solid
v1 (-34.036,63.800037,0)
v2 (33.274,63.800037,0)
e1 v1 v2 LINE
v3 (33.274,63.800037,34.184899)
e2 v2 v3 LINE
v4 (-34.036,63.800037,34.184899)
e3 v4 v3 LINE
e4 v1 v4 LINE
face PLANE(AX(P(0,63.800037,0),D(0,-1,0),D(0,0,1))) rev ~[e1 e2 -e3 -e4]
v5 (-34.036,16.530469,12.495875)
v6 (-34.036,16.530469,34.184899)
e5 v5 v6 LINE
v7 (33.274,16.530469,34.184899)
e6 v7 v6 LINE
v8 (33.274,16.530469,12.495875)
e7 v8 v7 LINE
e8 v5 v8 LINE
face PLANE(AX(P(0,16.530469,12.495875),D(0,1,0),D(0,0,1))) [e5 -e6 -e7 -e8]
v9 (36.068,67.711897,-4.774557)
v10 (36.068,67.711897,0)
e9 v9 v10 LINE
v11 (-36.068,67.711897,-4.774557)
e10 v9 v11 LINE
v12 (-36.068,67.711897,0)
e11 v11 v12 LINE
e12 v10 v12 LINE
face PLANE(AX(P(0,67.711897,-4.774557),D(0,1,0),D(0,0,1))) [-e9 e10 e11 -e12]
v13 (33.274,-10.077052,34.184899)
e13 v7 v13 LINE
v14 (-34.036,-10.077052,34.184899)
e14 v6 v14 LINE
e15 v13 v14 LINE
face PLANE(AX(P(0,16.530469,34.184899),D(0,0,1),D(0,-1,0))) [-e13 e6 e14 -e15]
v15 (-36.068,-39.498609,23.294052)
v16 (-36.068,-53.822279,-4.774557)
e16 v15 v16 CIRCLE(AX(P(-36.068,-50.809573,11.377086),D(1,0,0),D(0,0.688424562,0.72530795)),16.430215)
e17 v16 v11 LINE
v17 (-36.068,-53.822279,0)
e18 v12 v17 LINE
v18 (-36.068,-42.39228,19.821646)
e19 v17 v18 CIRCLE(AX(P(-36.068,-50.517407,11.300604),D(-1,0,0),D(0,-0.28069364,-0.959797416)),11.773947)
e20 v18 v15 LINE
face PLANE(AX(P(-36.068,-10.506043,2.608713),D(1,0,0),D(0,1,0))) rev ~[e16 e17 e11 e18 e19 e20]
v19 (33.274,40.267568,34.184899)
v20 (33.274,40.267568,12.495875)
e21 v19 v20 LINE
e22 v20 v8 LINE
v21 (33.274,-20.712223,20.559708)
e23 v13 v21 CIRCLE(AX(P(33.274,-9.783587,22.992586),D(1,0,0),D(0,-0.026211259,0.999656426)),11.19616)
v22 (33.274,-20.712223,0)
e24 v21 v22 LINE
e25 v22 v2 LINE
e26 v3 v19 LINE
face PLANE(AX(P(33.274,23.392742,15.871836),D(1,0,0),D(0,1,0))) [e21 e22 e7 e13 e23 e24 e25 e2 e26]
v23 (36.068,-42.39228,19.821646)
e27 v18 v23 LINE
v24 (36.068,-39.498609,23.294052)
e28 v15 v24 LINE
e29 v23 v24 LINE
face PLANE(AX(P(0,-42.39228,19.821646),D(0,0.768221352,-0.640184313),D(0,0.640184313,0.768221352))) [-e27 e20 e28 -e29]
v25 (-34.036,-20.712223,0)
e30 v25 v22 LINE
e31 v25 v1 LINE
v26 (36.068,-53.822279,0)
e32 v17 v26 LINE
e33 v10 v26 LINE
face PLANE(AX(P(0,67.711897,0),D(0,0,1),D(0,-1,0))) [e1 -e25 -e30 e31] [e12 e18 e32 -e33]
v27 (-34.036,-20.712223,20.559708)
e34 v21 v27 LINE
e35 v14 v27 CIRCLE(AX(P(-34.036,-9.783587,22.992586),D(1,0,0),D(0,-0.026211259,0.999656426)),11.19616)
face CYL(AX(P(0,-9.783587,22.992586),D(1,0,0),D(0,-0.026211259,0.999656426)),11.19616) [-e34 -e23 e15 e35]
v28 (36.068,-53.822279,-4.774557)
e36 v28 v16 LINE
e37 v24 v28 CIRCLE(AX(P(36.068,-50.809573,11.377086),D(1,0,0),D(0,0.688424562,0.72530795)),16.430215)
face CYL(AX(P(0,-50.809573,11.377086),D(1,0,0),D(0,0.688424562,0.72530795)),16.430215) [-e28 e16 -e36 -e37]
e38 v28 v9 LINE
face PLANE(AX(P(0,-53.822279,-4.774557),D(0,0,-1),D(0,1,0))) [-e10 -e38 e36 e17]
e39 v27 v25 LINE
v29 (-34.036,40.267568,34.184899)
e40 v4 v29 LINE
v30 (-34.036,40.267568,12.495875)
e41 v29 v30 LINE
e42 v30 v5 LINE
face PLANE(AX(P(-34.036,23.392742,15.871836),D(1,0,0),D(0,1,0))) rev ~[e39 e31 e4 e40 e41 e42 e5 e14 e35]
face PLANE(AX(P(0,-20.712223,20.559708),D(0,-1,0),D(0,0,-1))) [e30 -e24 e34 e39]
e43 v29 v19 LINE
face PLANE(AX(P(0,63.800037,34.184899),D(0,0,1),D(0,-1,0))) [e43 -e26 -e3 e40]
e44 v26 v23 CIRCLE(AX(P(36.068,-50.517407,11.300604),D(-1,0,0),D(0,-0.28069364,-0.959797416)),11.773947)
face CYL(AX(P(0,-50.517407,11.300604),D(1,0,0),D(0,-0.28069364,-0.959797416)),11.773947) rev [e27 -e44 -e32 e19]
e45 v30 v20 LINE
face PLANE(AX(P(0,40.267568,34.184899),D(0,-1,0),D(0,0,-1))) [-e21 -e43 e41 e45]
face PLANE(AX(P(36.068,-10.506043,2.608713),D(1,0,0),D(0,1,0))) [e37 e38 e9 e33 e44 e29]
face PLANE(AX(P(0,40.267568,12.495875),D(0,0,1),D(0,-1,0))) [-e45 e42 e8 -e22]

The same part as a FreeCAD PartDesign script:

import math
import FreeCAD as App
import Part
import Sketcher

V = App.Vector
Q = App.Units.Quantity

doc = App.newDocument("Part")
body = doc.addObject("PartDesign::Body", "Body")

# Sketch on YZ plane
sketch1 = body.newObject("Sketcher::SketchObject", "Sketch")
sketch1.AttachmentSupport = (doc.getObject("YZ_Plane"), [""])
sketch1.MapMode = "FlatFace"
sketch1.addGeometry(Part.LineSegment(V(67.711897, 0, 0), V(-53.822279, 0, 0)), False)
sketch1.addGeometry(Part.ArcOfCircle(Part.Circle(V(-50.517407, 11.300604, 0), V(0, 0, 1), 11.773947), math.radians(46.362474), math.radians(253.698392)), False)
sketch1.addGeometry(Part.LineSegment(V(-42.39228, 19.821646, 0), V(-39.498609, 23.294052, 0)), False)
sketch1.addGeometry(Part.ArcOfCircle(Part.Circle(V(-50.809573, 11.377086, 0), V(0, 0, 1), 16.430215), math.radians(46.494472), math.radians(259.434249)), False)
sketch1.addGeometry(Part.LineSegment(V(-53.822279, -4.774557, 0), V(67.711897, -4.774557, 0)), False)
sketch1.addGeometry(Part.LineSegment(V(67.711897, -4.774557, 0), V(67.711897, 0, 0)), False)
sketch1.addConstraint(Sketcher.Constraint("Coincident", 0, 2, 1, 2))
sketch1.addConstraint(Sketcher.Constraint("Coincident", 1, 1, 2, 1))
sketch1.addConstraint(Sketcher.Constraint("Coincident", 2, 2, 3, 1))
sketch1.addConstraint(Sketcher.Constraint("Coincident", 3, 2, 4, 1))
sketch1.addConstraint(Sketcher.Constraint("Coincident", 4, 2, 5, 1))
sketch1.addConstraint(Sketcher.Constraint("Coincident", 5, 2, 0, 1))
sketch1.addConstraint(Sketcher.Constraint("Horizontal", 0))
sketch1.addConstraint(Sketcher.Constraint("Horizontal", 4))
sketch1.addConstraint(Sketcher.Constraint("Vertical", 5))
sketch1.addConstraint(Sketcher.Constraint("PointOnObject", 0, 2, -1))
sketch1.addConstraint(Sketcher.Constraint("Vertical", 0, 2, 3, 2))
sketch1.addConstraint(Sketcher.Constraint("DistanceX", 0, 2, 1, 1, Q("0.45 in")))
sketch1.addConstraint(Sketcher.Constraint("Radius", 1, 11.773947))
sketch1.addConstraint(Sketcher.Constraint("Radius", 3, 16.430215))
sketch1.addConstraint(Sketcher.Constraint("Distance", 2, 4.520059))
sketch1.addConstraint(Sketcher.Constraint("DistanceX", 0, 2, 0, 1, 121.534176))
sketch1.addConstraint(Sketcher.Constraint("DistanceY", 5, 1, 5, 2, 4.774557))
sketch1.addConstraint(Sketcher.Constraint("DistanceX", 0, 2, -1, 1, 53.822279))
sketch1.addConstraint(Sketcher.Constraint("DistanceX", 2, 2, -1, 1, 39.498609))
sketch1.addConstraint(Sketcher.Constraint("DistanceY", 1, 3, 3, 3, 0.076482))
pad1 = body.newObject("PartDesign::Pad", "Pad")
pad1.Profile = sketch1
pad1.Type = "TwoLengths"
pad1.Length = Q("1.42 in")
pad1.Length2 = Q("1.42 in")

# Sketch on YZ plane
sketch2 = body.newObject("Sketcher::SketchObject", "Sketch001")
sketch2.AttachmentSupport = (doc.getObject("YZ_Plane"), [""])
sketch2.MapMode = "FlatFace"
sketch2.addGeometry(Part.LineSegment(V(-20.712223, 20.559708, 0), V(-20.712223, 0, 0)), False)
sketch2.addGeometry(Part.LineSegment(V(-20.712223, 0, 0), V(63.800037, 0, 0)), False)
sketch2.addGeometry(Part.LineSegment(V(63.800037, 0, 0), V(63.800037, 34.184899, 0)), False)
sketch2.addGeometry(Part.LineSegment(V(63.800037, 34.184899, 0), V(40.267568, 34.184899, 0)), False)
sketch2.addGeometry(Part.LineSegment(V(40.267568, 34.184899, 0), V(40.267568, 12.495875, 0)), False)
sketch2.addGeometry(Part.LineSegment(V(40.267568, 12.495875, 0), V(16.530469, 12.495875, 0)), False)
sketch2.addGeometry(Part.LineSegment(V(16.530469, 12.495875, 0), V(16.530469, 34.184899, 0)), False)
sketch2.addGeometry(Part.LineSegment(V(16.530469, 34.184899, 0), V(-10.077052, 34.184899, 0)), False)
sketch2.addGeometry(Part.ArcOfCircle(Part.Circle(V(-9.783587, 22.992586, 0), V(0, 0, 1), 11.19616), math.radians(91.501967), math.radians(192.55025)), False)
sketch2.addConstraint(Sketcher.Constraint("Coincident", 0, 2, 1, 1))
sketch2.addConstraint(Sketcher.Constraint("Coincident", 1, 2, 2, 1))
sketch2.addConstraint(Sketcher.Constraint("Coincident", 2, 2, 3, 1))
sketch2.addConstraint(Sketcher.Constraint("Coincident", 3, 2, 4, 1))
sketch2.addConstraint(Sketcher.Constraint("Coincident", 4, 2, 5, 1))
sketch2.addConstraint(Sketcher.Constraint("Coincident", 5, 2, 6, 1))
sketch2.addConstraint(Sketcher.Constraint("Coincident", 6, 2, 7, 1))
sketch2.addConstraint(Sketcher.Constraint("Coincident", 7, 2, 8, 1))
sketch2.addConstraint(Sketcher.Constraint("Coincident", 8, 2, 0, 1))
sketch2.addConstraint(Sketcher.Constraint("Vertical", 0))
sketch2.addConstraint(Sketcher.Constraint("Horizontal", 1))
sketch2.addConstraint(Sketcher.Constraint("Vertical", 2))
sketch2.addConstraint(Sketcher.Constraint("Horizontal", 3))
sketch2.addConstraint(Sketcher.Constraint("Vertical", 4))
sketch2.addConstraint(Sketcher.Constraint("Horizontal", 5))
sketch2.addConstraint(Sketcher.Constraint("Vertical", 6))
sketch2.addConstraint(Sketcher.Constraint("Horizontal", 7))
sketch2.addConstraint(Sketcher.Constraint("PointOnObject", 0, 2, -1))
sketch2.addConstraint(Sketcher.Constraint("Horizontal", 3, 2, 6, 2))
sketch2.addConstraint(Sketcher.Constraint("Radius", 8, 11.19616))
sketch2.addConstraint(Sketcher.Constraint("DistanceX", 5, 2, 5, 1, 23.737099))
sketch2.addConstraint(Sketcher.Constraint("DistanceY", 2, 1, 2, 2, 34.184899))
sketch2.addConstraint(Sketcher.Constraint("DistanceX", 1, 1, 1, 2, 84.51226))
sketch2.addConstraint(Sketcher.Constraint("DistanceX", 3, 2, 3, 1, 23.532469))
sketch2.addConstraint(Sketcher.Constraint("DistanceX", 7, 2, 7, 1, 26.607521))
sketch2.addConstraint(Sketcher.Constraint("DistanceY", 0, 2, 0, 1, 20.559708))
sketch2.addConstraint(Sketcher.Constraint("DistanceY", 4, 2, 4, 1, 21.689024))
sketch2.addConstraint(Sketcher.Constraint("DistanceX", -1, 1, 5, 2, 16.530469))
pad2 = body.newObject("PartDesign::Pad", "Pad001")
pad2.Profile = sketch2
pad2.Type = "TwoLengths"
pad2.Length = Q("1.31 in")
pad2.Length2 = Q("1.34 in")

doc.recompute()
